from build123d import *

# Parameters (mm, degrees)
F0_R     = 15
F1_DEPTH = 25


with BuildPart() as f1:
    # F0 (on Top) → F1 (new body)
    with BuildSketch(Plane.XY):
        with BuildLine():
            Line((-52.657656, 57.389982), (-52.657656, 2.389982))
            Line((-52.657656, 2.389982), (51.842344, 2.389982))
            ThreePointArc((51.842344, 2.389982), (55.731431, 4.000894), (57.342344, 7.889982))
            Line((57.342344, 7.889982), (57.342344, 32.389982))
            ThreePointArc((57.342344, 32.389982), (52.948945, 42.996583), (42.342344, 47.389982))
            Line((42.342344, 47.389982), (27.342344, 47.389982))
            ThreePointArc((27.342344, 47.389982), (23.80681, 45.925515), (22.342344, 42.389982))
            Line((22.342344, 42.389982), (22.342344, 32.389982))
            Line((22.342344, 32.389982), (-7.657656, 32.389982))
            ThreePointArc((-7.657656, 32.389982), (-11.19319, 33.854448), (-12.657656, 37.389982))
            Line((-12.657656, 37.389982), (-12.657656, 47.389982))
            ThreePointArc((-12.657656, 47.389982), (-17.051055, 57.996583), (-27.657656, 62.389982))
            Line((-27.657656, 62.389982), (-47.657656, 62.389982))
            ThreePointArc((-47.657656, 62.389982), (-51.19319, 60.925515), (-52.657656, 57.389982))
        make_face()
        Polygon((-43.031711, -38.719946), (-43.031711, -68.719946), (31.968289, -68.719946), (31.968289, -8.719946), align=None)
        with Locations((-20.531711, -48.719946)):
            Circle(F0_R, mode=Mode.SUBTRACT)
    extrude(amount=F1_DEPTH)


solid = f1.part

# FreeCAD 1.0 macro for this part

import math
import FreeCAD as App
import Part
import Sketcher
from FreeCAD import Vector
Q = App.Units.Quantity


def add_polygon(sketch, points):
    """Adds a closed chain of lines whose ends are joined by coincident constraints."""
    first, n = sketch.GeometryCount, len(points)
    for a, b in zip(points, points[1:] + points[:1]):
        sketch.addGeometry(Part.LineSegment(App.Vector(*a, 0), App.Vector(*b, 0)), False)
    for i in range(n):
        sketch.addConstraint(Sketcher.Constraint("Coincident", first + i, 2, first + (i + 1) % n, 1))

doc = App.newDocument("Part")
body = doc.addObject("PartDesign::Body", "Body")
body.AllowCompound = True

sketch1 = doc.addObject("Sketcher::SketchObject", "Sketch")
body.addObject(sketch1)
sketch1.AttachmentSupport = (doc.XY_Plane, [""])
sketch1.MapMode = "FlatFace"
sketch1.addGeometry(Part.LineSegment(Vector(-52.7, 57.4, 0), Vector(-52.7, 2.4, 0)), False)
sketch1.addGeometry(Part.LineSegment(Vector(-52.7, 2.4, 0), Vector(51.8, 2.4, 0)), False)
sketch1.addGeometry(Part.ArcOfCircle(Part.Circle(Vector(51.8, 7.9, 0), Vector(0, 0, 1), 5.5), math.radians(-90), math.radians(0)), False)
sketch1.addGeometry(Part.LineSegment(Vector(57.3, 7.9, 0), Vector(57.3, 32.4, 0)), False)
sketch1.addGeometry(Part.ArcOfCircle(Part.Circle(Vector(42.3, 32.4, 0), Vector(0, 0, 1), 15), math.radians(0), math.radians(90)), False)
sketch1.addGeometry(Part.LineSegment(Vector(42.3, 47.4, 0), Vector(27.3, 47.4, 0)), False)
sketch1.addGeometry(Part.ArcOfCircle(Part.Circle(Vector(27.3, 42.4, 0), Vector(0, 0, 1), 5), math.radians(90), math.radians(180)), False)
sketch1.addGeometry(Part.LineSegment(Vector(22.3, 42.4, 0), Vector(22.3, 32.4, 0)), False)
sketch1.addGeometry(Part.LineSegment(Vector(22.3, 32.4, 0), Vector(-7.7, 32.4, 0)), False)
sketch1.addGeometry(Part.ArcOfCircle(Part.Circle(Vector(-7.7, 37.4, 0), Vector(0, 0, 1), 5), math.radians(180), math.radians(270)), False)
sketch1.addGeometry(Part.LineSegment(Vector(-12.7, 37.4, 0), Vector(-12.7, 47.4, 0)), False)
sketch1.addGeometry(Part.ArcOfCircle(Part.Circle(Vector(-27.7, 47.4, 0), Vector(0, 0, 1), 15), math.radians(0), math.radians(90)), False)
sketch1.addGeometry(Part.LineSegment(Vector(-27.7, 62.4, 0), Vector(-47.7, 62.4, 0)), False)
sketch1.addGeometry(Part.ArcOfCircle(Part.Circle(Vector(-47.7, 57.4, 0), Vector(0, 0, 1), 5), math.radians(90), math.radians(180)), False)
add_polygon(sketch1, [(-43, -38.7), (-43, -68.7), (32, -68.7), (32, -8.7)])
sketch1.addGeometry(Part.Circle(Vector(-20.5, -48.7, 0), Vector(0, 0, 1), 15), False)
sketch1.addConstraint([
    Sketcher.Constraint("Coincident", 0, 2, 1, 1),
    Sketcher.Constraint("Tangent", 1, 2, 2, 1),
    Sketcher.Constraint("Tangent", 2, 2, 3, 1),
    Sketcher.Constraint("Tangent", 3, 2, 4, 1),
    Sketcher.Constraint("Tangent", 4, 2, 5, 1),
    Sketcher.Constraint("Tangent", 5, 2, 6, 1),
    Sketcher.Constraint("Tangent", 6, 2, 7, 1),
    Sketcher.Constraint("Coincident", 7, 2, 8, 1),
    Sketcher.Constraint("Tangent", 8, 2, 9, 2),
    Sketcher.Constraint("Tangent", 9, 1, 10, 1),
    Sketcher.Constraint("Tangent", 10, 2, 11, 1),
    Sketcher.Constraint("Tangent", 11, 2, 12, 1),
    Sketcher.Constraint("Tangent", 12, 2, 13, 1),
    Sketcher.Constraint("Tangent", 13, 2, 0, 1),
    Sketcher.Constraint("Vertical", 0),
    Sketcher.Constraint("Horizontal", 1),
    Sketcher.Constraint("Vertical", 3),
    Sketcher.Constraint("Horizontal", 5),
    Sketcher.Constraint("Vertical", 7),
    Sketcher.Constraint("Horizontal", 8),
    Sketcher.Constraint("Vertical", 10),
    Sketcher.Constraint("Horizontal", 12),
    Sketcher.Constraint("Vertical", 14),
    Sketcher.Constraint("Horizontal", 15),
    Sketcher.Constraint("Vertical", 16),
    Sketcher.Constraint("Equal", 6, 9),
    Sketcher.Constraint("Equal", 4, 11),
    Sketcher.Constraint("Equal", 9, 13),
    Sketcher.Constraint("Horizontal", 3, 2, 7, 2),
    Sketcher.Constraint("Horizontal", 5, 2, 10, 2),
    Sketcher.Constraint("Equal", 8, 14),
    Sketcher.Constraint("Diameter", 18, Q("30 mm")),
    Sketcher.Constraint("Radius", 6, Q("5.000001 mm")),
    Sketcher.Constraint("Radius", 2, Q("5.499999 mm")),
    Sketcher.Constraint("DistanceX", 5, 2, 5, 1, Q("15 mm")),
    Sketcher.Constraint("DistanceX", 8, 2, 8, 1, Q("30 mm")),
    Sketcher.Constraint("DistanceX", 12, 2, 12, 1, Q("20 mm")),
    Sketcher.Constraint("DistanceX", 15, 1, 15, 2, Q("75 mm")),
    Sketcher.Constraint("DistanceY", 0, 2, 0, 1, Q("55 mm")),
    Sketcher.Constraint("DistanceY", 7, 2, 7, 1, Q("10 mm")),
    Sketcher.Constraint("DistanceY", 16, 1, 16, 2, Q("60 mm")),
    Sketcher.Constraint("DistanceY", 14, 2, 18, 3, Q("20 mm")),
    Sketcher.Constraint("DistanceX", 14, 2, 18, 3, Q("22.5 mm")),
    Sketcher.Constraint("DistanceY", -1, 1, 2, 3, Q("7.889981 mm")),
    Sketcher.Constraint("DistanceX", -1, 1, 4, 3, Q("42.342342 mm")),
    Sketcher.Constraint("DistanceX", 18, 3, -1, 1, Q("20.531711 mm")),
    Sketcher.Constraint("DistanceY", 16, 2, 2, 2, Q("16.609928 mm")),
])
pad1 = doc.addObject("PartDesign::Pad", "Pad")
body.addObject(pad1)
pad1.Profile = sketch1
pad1.Length = 25

doc.recompute()
